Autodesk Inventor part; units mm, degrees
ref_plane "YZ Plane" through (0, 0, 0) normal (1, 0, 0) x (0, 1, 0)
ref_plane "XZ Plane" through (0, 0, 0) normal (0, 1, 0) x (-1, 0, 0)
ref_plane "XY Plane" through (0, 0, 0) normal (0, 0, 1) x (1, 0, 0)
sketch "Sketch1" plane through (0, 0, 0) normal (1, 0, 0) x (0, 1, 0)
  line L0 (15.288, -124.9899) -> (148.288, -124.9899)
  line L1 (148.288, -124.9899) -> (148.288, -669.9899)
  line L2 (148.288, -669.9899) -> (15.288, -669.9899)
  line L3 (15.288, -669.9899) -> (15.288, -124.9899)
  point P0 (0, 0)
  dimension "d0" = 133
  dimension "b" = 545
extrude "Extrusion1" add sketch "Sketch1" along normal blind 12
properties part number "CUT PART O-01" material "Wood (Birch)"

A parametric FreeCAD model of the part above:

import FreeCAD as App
import Part
import Sketcher
Q = App.Units.Quantity

doc = App.newDocument("Part")
body = doc.addObject("PartDesign::Body", "Body")

# Sketch on YZ plane
sketch1 = doc.addObject("Sketcher::SketchObject", "Sketch")
body.addObject(sketch1)
sketch1.AttachmentSupport = (doc.YZ_Plane, [""])
sketch1.MapMode = "FlatFace"
sketch1.addGeometry([
    Part.LineSegment(App.Vector(148, -125, 0), App.Vector(15, -125, 0)),
    Part.LineSegment(App.Vector(15, -125, 0), App.Vector(15, -670, 0)),
    Part.LineSegment(App.Vector(15, -670, 0), App.Vector(148, -670, 0)),
    Part.LineSegment(App.Vector(148, -670, 0), App.Vector(148, -125, 0)),
], False)
sketch1.addConstraint([
    Sketcher.Constraint("Coincident", 0, 2, 1, 1),
    Sketcher.Constraint("Coincident", 1, 2, 2, 1),
    Sketcher.Constraint("Coincident", 2, 2, 3, 1),
    Sketcher.Constraint("Coincident", 3, 2, 0, 1),
    Sketcher.Constraint("Horizontal", 0),
    Sketcher.Constraint("Vertical", 1),
    Sketcher.Constraint("Horizontal", 2),
    Sketcher.Constraint("Vertical", 3),
    Sketcher.Constraint("DistanceX", 0, 2, 0, 1, Q("133 mm")),
    Sketcher.Constraint("DistanceY", 1, 2, 1, 1, Q("545 mm")),
    Sketcher.Constraint("DistanceY", 0, 2, -1, 1, Q("124.99 mm")),
    Sketcher.Constraint("DistanceX", -1, 1, 0, 2, Q("15.288 mm")),
])
pad1 = doc.addObject("PartDesign::Pad", "Pad")
body.addObject(pad1)
pad1.Profile = sketch1
pad1.Length = 12

doc.recompute()
